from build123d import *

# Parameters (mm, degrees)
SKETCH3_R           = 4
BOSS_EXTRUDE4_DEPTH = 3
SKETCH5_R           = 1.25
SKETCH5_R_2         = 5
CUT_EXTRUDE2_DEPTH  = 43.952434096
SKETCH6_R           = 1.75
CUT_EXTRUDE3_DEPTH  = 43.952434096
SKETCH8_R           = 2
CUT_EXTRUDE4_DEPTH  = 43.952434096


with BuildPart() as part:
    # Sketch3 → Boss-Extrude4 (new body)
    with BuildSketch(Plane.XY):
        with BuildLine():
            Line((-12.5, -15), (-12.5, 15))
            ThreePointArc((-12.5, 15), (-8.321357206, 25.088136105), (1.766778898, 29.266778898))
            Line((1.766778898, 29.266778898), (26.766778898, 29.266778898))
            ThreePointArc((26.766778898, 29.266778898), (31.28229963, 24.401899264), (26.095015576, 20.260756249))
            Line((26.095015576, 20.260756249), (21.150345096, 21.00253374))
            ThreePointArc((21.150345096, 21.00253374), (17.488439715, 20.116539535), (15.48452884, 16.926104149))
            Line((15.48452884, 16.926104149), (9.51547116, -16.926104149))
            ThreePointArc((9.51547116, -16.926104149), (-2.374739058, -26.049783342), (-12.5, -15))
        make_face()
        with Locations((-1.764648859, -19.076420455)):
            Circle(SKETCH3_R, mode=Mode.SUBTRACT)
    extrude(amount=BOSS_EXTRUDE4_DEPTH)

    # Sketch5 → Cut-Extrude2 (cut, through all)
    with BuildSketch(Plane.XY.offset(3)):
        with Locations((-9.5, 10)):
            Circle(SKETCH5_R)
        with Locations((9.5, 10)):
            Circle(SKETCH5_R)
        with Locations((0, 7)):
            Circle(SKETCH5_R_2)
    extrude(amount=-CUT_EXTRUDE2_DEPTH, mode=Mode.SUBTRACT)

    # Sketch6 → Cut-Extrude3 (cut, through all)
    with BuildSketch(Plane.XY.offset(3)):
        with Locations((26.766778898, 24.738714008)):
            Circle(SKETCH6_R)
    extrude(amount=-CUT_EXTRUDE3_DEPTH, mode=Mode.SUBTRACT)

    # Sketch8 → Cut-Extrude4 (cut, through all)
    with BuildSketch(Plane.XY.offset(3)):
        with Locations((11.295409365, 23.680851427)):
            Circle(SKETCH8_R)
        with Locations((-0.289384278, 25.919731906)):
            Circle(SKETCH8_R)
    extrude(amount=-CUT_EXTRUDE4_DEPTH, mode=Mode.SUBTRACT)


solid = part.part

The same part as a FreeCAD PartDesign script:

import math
import FreeCAD as App
import Part
import Sketcher

V = App.Vector
Q = App.Units.Quantity

doc = App.newDocument("Part")
body = doc.addObject("PartDesign::Body", "Body")

sketch1 = body.newObject("Sketcher::SketchObject", "Sketch")
sketch1.AttachmentSupport = (doc.getObject("XY_Plane"), [""])
sketch1.MapMode = "FlatFace"
sketch1.addGeometry(Part.LineSegment(V(-12.5, 15, 0), V(-12.5, -15, 0)), False)
sketch1.addGeometry(Part.ArcOfCircle(Part.Circle(V(-1.4, -15, 0), V(0, 0, 1), 11.1), math.radians(180), math.radians(350)), False)
sketch1.addGeometry(Part.LineSegment(V(9.5, -16.9, 0), V(15.5, 16.9, 0)), False)
sketch1.addGeometry(Part.ArcOfCircle(Part.Circle(V(20.4, 16.1, 0), V(0, 0, 1), 5), math.radians(81), math.radians(170)), False)
sketch1.addGeometry(Part.LineSegment(V(21.2, 21, 0), V(26.1, 20.3, 0)), False)
sketch1.addGeometry(Part.ArcOfCircle(Part.Circle(V(26.8, 24.7, 0), V(0, 0, 1), 4.5), math.radians(-99), math.radians(90)), False)
sketch1.addGeometry(Part.LineSegment(V(26.8, 29.3, 0), V(1.8, 29.3, 0)), False)
sketch1.addGeometry(Part.ArcOfCircle(Part.Circle(V(1.8, 15, 0), V(0, 0, 1), 14.3), math.radians(90), math.radians(180)), False)
sketch1.addGeometry(Part.Circle(V(-1.8, -19.1, 0), V(0, 0, 1), 4), False)
sketch1.addConstraint(Sketcher.Constraint("Tangent", 0, 2, 1, 1))
sketch1.addConstraint(Sketcher.Constraint("Tangent", 1, 2, 2, 1))
sketch1.addConstraint(Sketcher.Constraint("Tangent", 2, 2, 3, 2))
sketch1.addConstraint(Sketcher.Constraint("Tangent", 3, 1, 4, 1))
sketch1.addConstraint(Sketcher.Constraint("Tangent", 4, 2, 5, 1))
sketch1.addConstraint(Sketcher.Constraint("Tangent", 5, 2, 6, 1))
sketch1.addConstraint(Sketcher.Constraint("Tangent", 6, 2, 7, 1))
sketch1.addConstraint(Sketcher.Constraint("Tangent", 7, 2, 0, 1))
sketch1.addConstraint(Sketcher.Constraint("Vertical", 0))
sketch1.addConstraint(Sketcher.Constraint("Horizontal", 6))
sketch1.addConstraint(Sketcher.Constraint("Diameter", 8, Q("8 mm")))
sketch1.addConstraint(Sketcher.Constraint("Radius", 3, Q("5 mm")))
sketch1.addConstraint(Sketcher.Constraint("DistanceX", 6, 2, 6, 1, Q("25 mm")))
sketch1.addConstraint(Sketcher.Constraint("DistanceY", 0, 2, 0, 1, Q("30 mm")))
sketch1.addConstraint(Sketcher.Constraint("Angle", 2, Q("80 deg")))
sketch1.addConstraint(Sketcher.Constraint("Distance", 4, Q("5 mm")))
sketch1.addConstraint(Sketcher.Constraint("DistanceY", 1, 3, -1, 1, Q("15 mm")))
sketch1.addConstraint(Sketcher.Constraint("DistanceX", 0, 2, -1, 1, Q("12.5 mm")))
sketch1.addConstraint(Sketcher.Constraint("Radius", 1, Q("11.091992 mm")))
sketch1.addConstraint(Sketcher.Constraint("Radius", 7, Q("14.266779 mm")))
sketch1.addConstraint(Sketcher.Constraint("Radius", 5, Q("4.528065 mm")))
sketch1.addConstraint(Sketcher.Constraint("DistanceX", 8, 3, -1, 1, Q("1.764649 mm")))
sketch1.addConstraint(Sketcher.Constraint("DistanceY", 8, 3, -1, 1, Q("19.07642 mm")))
pad1 = body.newObject("PartDesign::Pad", "Pad")
pad1.Profile = sketch1
pad1.Length = 3

sketch2 = body.newObject("Sketcher::SketchObject", "Sketch001")
sketch2.AttachmentSupport = (doc.getObject("XY_Plane"), [""])
sketch2.MapMode = "FlatFace"
sketch2.AttachmentOffset = App.Placement(V(0, 0, 3), App.Rotation())
sketch2.addGeometry(Part.Circle(V(-9.5, 10, 0), V(0, 0, 1), 1.2), False)
sketch2.addGeometry(Part.Circle(V(9.5, 10, 0), V(0, 0, 1), 1.2), False)
sketch2.addGeometry(Part.Circle(V(0, 7, 0), V(0, 0, 1), 5), False)
sketch2.addConstraint(Sketcher.Constraint("Equal", 0, 1))
sketch2.addConstraint(Sketcher.Constraint("Symmetric", 0, 3, 1, 3, -2))
sketch2.addConstraint(Sketcher.Constraint("PointOnObject", 2, 3, -2))
sketch2.addConstraint(Sketcher.Constraint("Diameter", 2, Q("10 mm")))
sketch2.addConstraint(Sketcher.Constraint("Diameter", 0, Q("2.5 mm")))
sketch2.addConstraint(Sketcher.Constraint("DistanceY", -1, 1, 0, 3, Q("10 mm")))
sketch2.addConstraint(Sketcher.Constraint("DistanceY", -1, 1, 2, 3, Q("7 mm")))
sketch2.addConstraint(Sketcher.Constraint("DistanceX", 0, 3, 1, 3, Q("19 mm")))
pocket1 = body.newObject("PartDesign::Pocket", "Pocket")
pocket1.Profile = sketch2
pocket1.Type = "ThroughAll"

sketch3 = body.newObject("Sketcher::SketchObject", "Sketch002")
sketch3.AttachmentSupport = (doc.getObject("XY_Plane"), [""])
sketch3.MapMode = "FlatFace"
sketch3.AttachmentOffset = App.Placement(V(0, 0, 3), App.Rotation())
sketch3.addGeometry(Part.Circle(V(26.8, 24.7, 0), V(0, 0, 1), 1.8), False)
sketch3.addConstraint(Sketcher.Constraint("Diameter", 0, Q("3.5 mm")))
sketch3.addConstraint(Sketcher.Constraint("DistanceX", -1, 1, 0, 3, Q("26.766779 mm")))
sketch3.addConstraint(Sketcher.Constraint("DistanceY", -1, 1, 0, 3, Q("24.738714 mm")))
pocket2 = body.newObject("PartDesign::Pocket", "Pocket001")
pocket2.Profile = sketch3
pocket2.Type = "ThroughAll"

sketch4 = body.newObject("Sketcher::SketchObject", "Sketch003")
sketch4.AttachmentSupport = (doc.getObject("XY_Plane"), [""])
sketch4.MapMode = "FlatFace"
sketch4.AttachmentOffset = App.Placement(V(0, 0, 3), App.Rotation())
sketch4.addGeometry(Part.Circle(V(11.3, 23.7, 0), V(0, 0, 1), 2), False)
sketch4.addGeometry(Part.Circle(V(-0.3, 25.9, 0), V(0, 0, 1), 2), False)
sketch4.addConstraint(Sketcher.Constraint("Equal", 0, 1))
sketch4.addConstraint(Sketcher.Constraint("Diameter", 0, Q("4 mm")))
sketch4.addConstraint(Sketcher.Constraint("DistanceX", -1, 1, 0, 3, Q("11.295409 mm")))
sketch4.addConstraint(Sketcher.Constraint("DistanceY", -1, 1, 0, 3, Q("23.680851 mm")))
sketch4.addConstraint(Sketcher.Constraint("DistanceY", -1, 1, 1, 3, Q("25.919732 mm")))
sketch4.addConstraint(Sketcher.Constraint("DistanceX", 1, 3, -1, 1, Q("0.289384 mm")))
pocket3 = body.newObject("PartDesign::Pocket", "Pocket002")
pocket3.Profile = sketch4
pocket3.Type = "ThroughAll"

doc.recompute()
